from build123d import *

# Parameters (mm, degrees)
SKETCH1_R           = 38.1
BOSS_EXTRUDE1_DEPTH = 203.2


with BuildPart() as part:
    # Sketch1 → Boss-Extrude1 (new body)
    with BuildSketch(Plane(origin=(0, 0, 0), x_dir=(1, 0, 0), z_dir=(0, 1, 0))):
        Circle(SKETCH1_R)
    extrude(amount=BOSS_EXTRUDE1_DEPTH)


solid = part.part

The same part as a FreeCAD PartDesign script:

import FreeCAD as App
import Part
import Sketcher
from FreeCAD import Vector
Q = App.Units.Quantity

doc = App.newDocument("Part")
body = doc.addObject("PartDesign::Body", "Body")

sketch1 = doc.addObject("Sketcher::SketchObject", "Sketch")
body.addObject(sketch1)
sketch1.AttachmentSupport = (doc.XZ_Plane, [""])
sketch1.MapMode = "FlatFace"
sketch1.addGeometry(Part.Circle(Vector(0, 0, 0), Vector(0, 0, 1), 38), False)
sketch1.addConstraint([
    Sketcher.Constraint("Coincident", 0, 3, -1, 1),
    Sketcher.Constraint("Diameter", 0, Q("3 in")),
])
pad1 = doc.addObject("PartDesign::Pad", "Pad")
body.addObject(pad1)
pad1.Profile = sketch1
pad1.Length = Q("8 in")
pad1.Reversed = True

doc.recompute()
